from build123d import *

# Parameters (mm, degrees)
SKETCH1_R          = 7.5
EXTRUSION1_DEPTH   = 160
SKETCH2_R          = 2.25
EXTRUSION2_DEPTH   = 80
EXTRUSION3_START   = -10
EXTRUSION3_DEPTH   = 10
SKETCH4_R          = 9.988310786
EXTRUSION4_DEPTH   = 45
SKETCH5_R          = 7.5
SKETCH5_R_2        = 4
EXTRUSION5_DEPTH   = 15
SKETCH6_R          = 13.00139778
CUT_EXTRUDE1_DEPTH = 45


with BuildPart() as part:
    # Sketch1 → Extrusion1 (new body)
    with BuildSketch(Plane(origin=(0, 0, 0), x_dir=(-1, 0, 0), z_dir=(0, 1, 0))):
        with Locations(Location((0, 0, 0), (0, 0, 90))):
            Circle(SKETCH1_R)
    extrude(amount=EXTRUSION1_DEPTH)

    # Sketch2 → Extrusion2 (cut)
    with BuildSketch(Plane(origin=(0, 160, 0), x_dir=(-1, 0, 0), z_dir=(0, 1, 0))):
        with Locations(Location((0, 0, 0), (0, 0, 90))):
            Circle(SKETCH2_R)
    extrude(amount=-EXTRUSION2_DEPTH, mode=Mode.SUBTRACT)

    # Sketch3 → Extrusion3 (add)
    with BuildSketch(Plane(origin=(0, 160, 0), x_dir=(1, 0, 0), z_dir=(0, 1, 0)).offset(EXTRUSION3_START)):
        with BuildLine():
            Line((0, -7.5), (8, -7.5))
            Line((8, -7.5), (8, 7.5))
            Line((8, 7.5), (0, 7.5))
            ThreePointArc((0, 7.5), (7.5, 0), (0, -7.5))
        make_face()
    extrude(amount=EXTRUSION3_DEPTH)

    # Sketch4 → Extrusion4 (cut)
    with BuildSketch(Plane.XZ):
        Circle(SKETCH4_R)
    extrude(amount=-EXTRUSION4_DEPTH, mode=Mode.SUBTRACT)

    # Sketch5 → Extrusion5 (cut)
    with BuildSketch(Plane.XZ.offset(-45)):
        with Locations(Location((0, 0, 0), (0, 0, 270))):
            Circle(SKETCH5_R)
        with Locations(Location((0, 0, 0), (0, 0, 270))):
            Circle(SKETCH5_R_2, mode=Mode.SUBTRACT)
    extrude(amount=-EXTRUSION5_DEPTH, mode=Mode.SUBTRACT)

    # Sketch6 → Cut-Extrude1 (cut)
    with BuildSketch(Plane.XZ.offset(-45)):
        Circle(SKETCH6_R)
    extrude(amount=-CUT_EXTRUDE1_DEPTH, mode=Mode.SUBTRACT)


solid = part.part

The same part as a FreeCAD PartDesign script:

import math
import FreeCAD as App
import Part
import Sketcher
from FreeCAD import Vector

doc = App.newDocument("Part")
body = doc.addObject("PartDesign::Body", "Body")

sketch1 = body.newObject("Sketcher::SketchObject", "Sketch")
sketch1.AttachmentSupport = (doc.getObject("XZ_Plane"), [""])
sketch1.MapMode = "FlatFace"
sketch1.addGeometry(Part.Circle(Vector(0, 0, 0), Vector(0, 0, 1), 7.5), False)
sketch1.addConstraint([
    Sketcher.Constraint("Coincident", 0, 3, -1, 1),
    Sketcher.Constraint("Diameter", 0, 15.0),
])
pad1 = body.newObject("PartDesign::Pad", "Pad")
pad1.Profile = sketch1
pad1.Length = 160
pad1.Reversed = True

sketch2 = body.newObject("Sketcher::SketchObject", "Sketch001")
sketch2.AttachmentSupport = (doc.getObject("XZ_Plane"), [""])
sketch2.MapMode = "FlatFace"
sketch2.AttachmentOffset = App.Placement(Vector(0, 0, -160), App.Rotation())
sketch2.addGeometry(Part.Circle(Vector(0, 0, 0), Vector(0, 0, 1), 2.25), False)
sketch2.addConstraint([
    Sketcher.Constraint("Coincident", 0, 3, -1, 1),
    Sketcher.Constraint("Diameter", 0, 4.5),
])
pocket1 = body.newObject("PartDesign::Pocket", "Pocket")
pocket1.Profile = sketch2
pocket1.Length = 80
pocket1.Reversed = True

sketch3 = body.newObject("Sketcher::SketchObject", "Sketch002")
sketch3.AttachmentSupport = (doc.getObject("XZ_Plane"), [""])
sketch3.MapMode = "FlatFace"
sketch3.AttachmentOffset = App.Placement(Vector(0, 0, -150), App.Rotation())
sketch3.addGeometry([
    Part.LineSegment(Vector(0, 7.5, 0), Vector(8, 7.5, 0)),
    Part.LineSegment(Vector(8, 7.5, 0), Vector(8, -7.5, 0)),
    Part.LineSegment(Vector(8, -7.5, 0), Vector(0, -7.5, 0)),
    Part.ArcOfCircle(Part.Circle(Vector(0, 0, 0), Vector(0, 0, 1), 7.5), math.radians(-90), math.radians(90)),
], False)
sketch3.addConstraint([
    Sketcher.Constraint("Coincident", 0, 2, 1, 1),
    Sketcher.Constraint("Coincident", 1, 2, 2, 1),
    Sketcher.Constraint("Tangent", 2, 2, 3, 1),
    Sketcher.Constraint("Tangent", 3, 2, 0, 1),
    Sketcher.Constraint("Horizontal", 0),
    Sketcher.Constraint("Vertical", 1),
    Sketcher.Constraint("Horizontal", 2),
    Sketcher.Constraint("Coincident", 3, 3, -1, 1),
    Sketcher.Constraint("Radius", 3, 7.5),
    Sketcher.Constraint("DistanceX", 0, 1, 0, 2, 8.0),
])
pad2 = body.newObject("PartDesign::Pad", "Pad001")
pad2.Profile = sketch3
pad2.Length = 10
pad2.Reversed = True

sketch4 = body.newObject("Sketcher::SketchObject", "Sketch003")
sketch4.AttachmentSupport = (doc.getObject("XZ_Plane"), [""])
sketch4.MapMode = "FlatFace"
sketch4.addGeometry(Part.Circle(Vector(0, 0, 0), Vector(0, 0, 1), 9.988311), False)
sketch4.addConstraint([
    Sketcher.Constraint("Coincident", 0, 3, -1, 1),
    Sketcher.Constraint("Diameter", 0, 19.976622),
])
pocket2 = body.newObject("PartDesign::Pocket", "Pocket001")
pocket2.Profile = sketch4
pocket2.Length = 45

sketch5 = body.newObject("Sketcher::SketchObject", "Sketch004")
sketch5.AttachmentSupport = (doc.getObject("XZ_Plane"), [""])
sketch5.MapMode = "FlatFace"
sketch5.AttachmentOffset = App.Placement(Vector(0, 0, -45), App.Rotation())
sketch5.addGeometry([
    Part.Circle(Vector(0, 0, 0), Vector(0, 0, 1), 7.5),
    Part.Circle(Vector(0, 0, 0), Vector(0, 0, 1), 4),
], False)
sketch5.addConstraint([
    Sketcher.Constraint("Coincident", 0, 3, -1, 1),
    Sketcher.Constraint("Coincident", 1, 3, -1, 1),
    Sketcher.Constraint("Diameter", 0, 15.0),
    Sketcher.Constraint("Diameter", 1, 8.0),
])
pocket3 = body.newObject("PartDesign::Pocket", "Pocket002")
pocket3.Profile = sketch5
pocket3.Length = 15

sketch6 = body.newObject("Sketcher::SketchObject", "Sketch005")
sketch6.AttachmentSupport = (doc.getObject("XZ_Plane"), [""])
sketch6.MapMode = "FlatFace"
sketch6.AttachmentOffset = App.Placement(Vector(0, 0, -45), App.Rotation())
sketch6.addGeometry(Part.Circle(Vector(0, 0, 0), Vector(0, 0, 1), 13.001398), False)
sketch6.addConstraint([
    Sketcher.Constraint("Coincident", 0, 3, -1, 1),
    Sketcher.Constraint("Diameter", 0, 26.002796),
])
pocket4 = body.newObject("PartDesign::Pocket", "Pocket003")
pocket4.Profile = sketch6
pocket4.Length = 45

doc.recompute()
